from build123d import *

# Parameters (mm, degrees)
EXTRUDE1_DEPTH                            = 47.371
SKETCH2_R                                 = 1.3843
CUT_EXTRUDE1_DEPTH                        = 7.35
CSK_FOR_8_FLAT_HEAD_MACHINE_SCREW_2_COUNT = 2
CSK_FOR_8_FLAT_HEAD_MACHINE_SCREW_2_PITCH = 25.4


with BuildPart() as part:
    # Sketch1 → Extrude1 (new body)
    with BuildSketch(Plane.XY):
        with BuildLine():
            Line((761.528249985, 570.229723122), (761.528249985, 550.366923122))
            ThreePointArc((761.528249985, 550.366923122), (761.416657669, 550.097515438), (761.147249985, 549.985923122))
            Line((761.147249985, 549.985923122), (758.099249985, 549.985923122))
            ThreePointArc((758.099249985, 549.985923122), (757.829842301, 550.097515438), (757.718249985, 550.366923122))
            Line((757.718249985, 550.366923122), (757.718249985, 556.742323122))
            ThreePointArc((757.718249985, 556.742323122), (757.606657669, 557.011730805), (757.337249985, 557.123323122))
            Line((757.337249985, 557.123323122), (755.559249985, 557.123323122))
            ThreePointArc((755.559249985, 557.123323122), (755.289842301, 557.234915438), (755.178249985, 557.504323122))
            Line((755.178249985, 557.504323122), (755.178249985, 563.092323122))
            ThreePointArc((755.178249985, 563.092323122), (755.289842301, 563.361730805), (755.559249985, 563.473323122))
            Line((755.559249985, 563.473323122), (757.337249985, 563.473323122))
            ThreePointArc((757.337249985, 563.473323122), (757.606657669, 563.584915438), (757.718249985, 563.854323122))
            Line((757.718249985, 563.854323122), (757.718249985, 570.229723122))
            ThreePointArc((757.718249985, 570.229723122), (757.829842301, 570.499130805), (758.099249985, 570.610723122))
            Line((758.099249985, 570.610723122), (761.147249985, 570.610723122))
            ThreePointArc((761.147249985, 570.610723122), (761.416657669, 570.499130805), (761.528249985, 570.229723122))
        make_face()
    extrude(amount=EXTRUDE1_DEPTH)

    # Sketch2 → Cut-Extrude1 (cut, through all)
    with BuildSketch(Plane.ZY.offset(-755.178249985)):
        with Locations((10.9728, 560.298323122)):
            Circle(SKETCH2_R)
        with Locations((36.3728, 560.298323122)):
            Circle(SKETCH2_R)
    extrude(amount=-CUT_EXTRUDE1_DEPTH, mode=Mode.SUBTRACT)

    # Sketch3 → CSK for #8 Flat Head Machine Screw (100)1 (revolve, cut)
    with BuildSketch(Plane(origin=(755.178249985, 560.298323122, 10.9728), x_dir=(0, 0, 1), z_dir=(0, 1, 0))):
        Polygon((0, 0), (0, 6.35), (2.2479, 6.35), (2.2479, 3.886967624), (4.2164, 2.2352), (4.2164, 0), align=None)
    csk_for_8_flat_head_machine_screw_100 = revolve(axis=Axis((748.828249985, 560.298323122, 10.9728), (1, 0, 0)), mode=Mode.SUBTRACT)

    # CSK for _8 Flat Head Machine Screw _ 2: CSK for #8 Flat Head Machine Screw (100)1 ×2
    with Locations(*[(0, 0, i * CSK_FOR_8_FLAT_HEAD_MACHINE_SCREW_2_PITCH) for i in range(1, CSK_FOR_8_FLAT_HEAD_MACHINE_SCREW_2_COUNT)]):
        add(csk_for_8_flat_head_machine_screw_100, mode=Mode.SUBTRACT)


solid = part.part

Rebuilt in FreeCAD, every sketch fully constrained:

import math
import FreeCAD as App
import Part
import Sketcher
Q = App.Units.Quantity

doc = App.newDocument("Part")
body = doc.addObject("PartDesign::Body", "Body")

# Sketch on XY plane
sketch1 = doc.addObject("Sketcher::SketchObject", "Sketch")
body.addObject(sketch1)
sketch1.AttachmentSupport = (doc.XY_Plane, [""])
sketch1.MapMode = "FlatFace"
sketch1.addGeometry([
    Part.LineSegment(App.Vector(761.52825, 550.366923, 0), App.Vector(761.52825, 570.229723, 0)),  # 0
    Part.ArcOfCircle(Part.Circle(App.Vector(761.14725, 570.229723, 0), App.Vector(0, 0, 1), 0.381), math.radians(0), math.radians(90)),  # 1
    Part.LineSegment(App.Vector(761.14725, 570.610723, 0), App.Vector(758.09925, 570.610723, 0)),  # 2
    Part.ArcOfCircle(Part.Circle(App.Vector(758.09925, 570.229723, 0), App.Vector(0, 0, 1), 0.381), math.radians(90), math.radians(180)),  # 3
    Part.LineSegment(App.Vector(757.71825, 570.229723, 0), App.Vector(757.71825, 563.854323, 0)),  # 4
    Part.ArcOfCircle(Part.Circle(App.Vector(757.33725, 563.854323, 0), App.Vector(0, 0, 1), 0.381), math.radians(-90), math.radians(0)),  # 5
    Part.LineSegment(App.Vector(757.33725, 563.473323, 0), App.Vector(755.55925, 563.473323, 0)),  # 6
    Part.ArcOfCircle(Part.Circle(App.Vector(755.55925, 563.092323, 0), App.Vector(0, 0, 1), 0.381), math.radians(90), math.radians(180)),  # 7
    Part.LineSegment(App.Vector(755.17825, 563.092323, 0), App.Vector(755.17825, 557.504323, 0)),  # 8
    Part.ArcOfCircle(Part.Circle(App.Vector(755.55925, 557.504323, 0), App.Vector(0, 0, 1), 0.381), math.radians(180), math.radians(270)),  # 9
    Part.LineSegment(App.Vector(755.55925, 557.123323, 0), App.Vector(757.33725, 557.123323, 0)),  # 10
    Part.ArcOfCircle(Part.Circle(App.Vector(757.33725, 556.742323, 0), App.Vector(0, 0, 1), 0.381), math.radians(0), math.radians(90)),  # 11
    Part.LineSegment(App.Vector(757.71825, 556.742323, 0), App.Vector(757.71825, 550.366923, 0)),  # 12
    Part.ArcOfCircle(Part.Circle(App.Vector(758.09925, 550.366923, 0), App.Vector(0, 0, 1), 0.381), math.radians(180), math.radians(270)),  # 13
    Part.LineSegment(App.Vector(758.09925, 549.985923, 0), App.Vector(761.14725, 549.985923, 0)),  # 14
    Part.ArcOfCircle(Part.Circle(App.Vector(761.14725, 550.366923, 0), App.Vector(0, 0, 1), 0.381), math.radians(-90), math.radians(0)),  # 15
], False)
sketch1.addConstraint([
    Sketcher.Constraint("Tangent", 0, 2, 1, 1),
    Sketcher.Constraint("Tangent", 1, 2, 2, 1),
    Sketcher.Constraint("Tangent", 2, 2, 3, 1),
    Sketcher.Constraint("Tangent", 3, 2, 4, 1),
    Sketcher.Constraint("Tangent", 4, 2, 5, 2),
    Sketcher.Constraint("Tangent", 5, 1, 6, 1),
    Sketcher.Constraint("Tangent", 6, 2, 7, 1),
    Sketcher.Constraint("Tangent", 7, 2, 8, 1),
    Sketcher.Constraint("Tangent", 8, 2, 9, 1),
    Sketcher.Constraint("Tangent", 9, 2, 10, 1),
    Sketcher.Constraint("Tangent", 10, 2, 11, 2),
    Sketcher.Constraint("Tangent", 11, 1, 12, 1),
    Sketcher.Constraint("Tangent", 12, 2, 13, 1),
    Sketcher.Constraint("Tangent", 13, 2, 14, 1),
    Sketcher.Constraint("Tangent", 14, 2, 15, 1),
    Sketcher.Constraint("Tangent", 15, 2, 0, 1),
    Sketcher.Constraint("Vertical", 0),
    Sketcher.Constraint("Horizontal", 2),
    Sketcher.Constraint("Vertical", 4),
    Sketcher.Constraint("Horizontal", 6),
    Sketcher.Constraint("Vertical", 8),
    Sketcher.Constraint("Horizontal", 10),
    Sketcher.Constraint("Vertical", 12),
    Sketcher.Constraint("Horizontal", 14),
    Sketcher.Constraint("Equal", 1, 3),
    Sketcher.Constraint("Equal", 3, 5),
    Sketcher.Constraint("Equal", 5, 7),
    Sketcher.Constraint("Equal", 7, 9),
    Sketcher.Constraint("Equal", 9, 11),
    Sketcher.Constraint("Equal", 11, 13),
    Sketcher.Constraint("Equal", 13, 15),
    Sketcher.Constraint("Vertical", 5, 3, 11, 3),
    Sketcher.Constraint("Equal", 4, 12),
    Sketcher.Constraint("Radius", 1, Q("0.015 in")),
    Sketcher.Constraint("DistanceX", 2, 2, 2, 1, Q("0.12 in")),
    Sketcher.Constraint("DistanceX", 6, 2, 6, 1, Q("0.07 in")),
    Sketcher.Constraint("DistanceY", 8, 2, 8, 1, Q("0.22 in")),
    Sketcher.Constraint("DistanceY", 0, 1, 0, 2, Q("0.782 in")),
    Sketcher.Constraint("DistanceX", -1, 1, 1, 3, Q("761.14725 mm")),
    Sketcher.Constraint("DistanceY", -1, 1, 1, 3, Q("570.229723 mm")),
])
pad1 = doc.addObject("PartDesign::Pad", "Pad")
body.addObject(pad1)
pad1.Profile = sketch1
pad1.Length = Q("1.865 in")

# Sketch on YZ plane
sketch2 = doc.addObject("Sketcher::SketchObject", "Sketch001")
body.addObject(sketch2)
sketch2.AttachmentSupport = (doc.YZ_Plane, [""])
sketch2.MapMode = "FlatFace"
sketch2.AttachmentOffset = App.Placement(App.Vector(0, 0, 755.17825), App.Rotation())
sketch2.addGeometry([
    Part.Circle(App.Vector(560.298323, 10.9728, 0), App.Vector(0, 0, 1), 1.3843),
    Part.Circle(App.Vector(560.298323, 36.3728, 0), App.Vector(0, 0, 1), 1.3843),
], False)
sketch2.addConstraint([
    Sketcher.Constraint("Equal", 0, 1),
    Sketcher.Constraint("Vertical", 0, 3, 1, 3),
    Sketcher.Constraint("Diameter", 0, Q("0.109 in")),
    Sketcher.Constraint("DistanceY", 0, 3, 1, 3, Q("1 in")),
    Sketcher.Constraint("DistanceY", -1, 1, 0, 3, Q("0.432 in")),
    Sketcher.Constraint("DistanceX", -1, 1, 0, 3, Q("560.298323 mm")),
])
pocket1 = doc.addObject("PartDesign::Pocket", "Pocket")
body.addObject(pocket1)
pocket1.Profile = sketch2
pocket1.Type = "ThroughAll"
pocket1.Reversed = True

# Sketch on XZ plane
sketch3 = doc.addObject("Sketcher::SketchObject", "Sketch002")
body.addObject(sketch3)
sketch3.AttachmentSupport = (doc.XZ_Plane, [""])
sketch3.MapMode = "FlatFace"
sketch3.AttachmentOffset = App.Placement(App.Vector(0, 0, -560.298323), App.Rotation())
sketch3.addGeometry([
    Part.LineSegment(App.Vector(761.52825, 10.9728, 0), App.Vector(755.17825, 10.9728, 0)),  # 0
    Part.LineSegment(App.Vector(755.17825, 10.9728, 0), App.Vector(755.17825, 15.1892, 0)),  # 1
    Part.LineSegment(App.Vector(755.17825, 15.1892, 0), App.Vector(757.41345, 15.1892, 0)),  # 2
    Part.LineSegment(App.Vector(757.41345, 15.1892, 0), App.Vector(759.065218, 13.2207, 0)),  # 3
    Part.LineSegment(App.Vector(759.065218, 13.2207, 0), App.Vector(761.52825, 13.2207, 0)),  # 4
    Part.LineSegment(App.Vector(761.52825, 13.2207, 0), App.Vector(761.52825, 10.9728, 0)),  # 5
], False)
sketch3.addGeometry(Part.LineSegment(App.Vector(755.17825, 10.9728, 0), App.Vector(761.52825, 10.9728, 0)), True)  # axis
sketch3.addConstraint([
    Sketcher.Constraint("Coincident", 0, 2, 1, 1),
    Sketcher.Constraint("Coincident", 1, 2, 2, 1),
    Sketcher.Constraint("Coincident", 2, 2, 3, 1),
    Sketcher.Constraint("Coincident", 3, 2, 4, 1),
    Sketcher.Constraint("Coincident", 4, 2, 5, 1),
    Sketcher.Constraint("Coincident", 5, 2, 0, 1),
    Sketcher.Constraint("Horizontal", 0),
    Sketcher.Constraint("Vertical", 1),
    Sketcher.Constraint("Horizontal", 2),
    Sketcher.Constraint("Horizontal", 4),
    Sketcher.Constraint("Vertical", 5),
    Sketcher.Constraint("Horizontal", 6),
    Sketcher.Constraint("Coincident", 6, 1, 0, 2),
    Sketcher.Constraint("Vertical", 4, 2, 6, 2),
    Sketcher.Constraint("Angle", 3, Q("-50 deg")),
    Sketcher.Constraint("DistanceX", 0, 2, 0, 1, Q("0.25 in")),
    Sketcher.Constraint("DistanceX", 2, 1, 2, 2, Q("0.088 in")),
    Sketcher.Constraint("DistanceY", 1, 1, 1, 2, Q("0.166 in")),
    Sketcher.Constraint("DistanceY", 5, 2, 5, 1, Q("0.0885 in")),
    Sketcher.Constraint("DistanceY", -1, 1, 0, 2, Q("0.432 in")),
    Sketcher.Constraint("DistanceX", -1, 1, 0, 2, Q("755.17825 mm")),
])
groove = doc.addObject("PartDesign::Groove", "Groove")
body.addObject(groove)
groove.Profile = sketch3
groove.ReferenceAxis = (sketch3, ["Axis0"])
groove.Angle = 360
doc.recompute()

linearpattern = doc.addObject("PartDesign::LinearPattern", "LinearPattern")
body.addObject(linearpattern)
linearpattern.Originals = [groove]
linearpattern.Direction = (doc.Z_Axis, [""])
linearpattern.Mode = "offset"
linearpattern.Offset = Q("1 in")
linearpattern.Occurrences = 2
body.Tip = linearpattern

doc.recompute()
